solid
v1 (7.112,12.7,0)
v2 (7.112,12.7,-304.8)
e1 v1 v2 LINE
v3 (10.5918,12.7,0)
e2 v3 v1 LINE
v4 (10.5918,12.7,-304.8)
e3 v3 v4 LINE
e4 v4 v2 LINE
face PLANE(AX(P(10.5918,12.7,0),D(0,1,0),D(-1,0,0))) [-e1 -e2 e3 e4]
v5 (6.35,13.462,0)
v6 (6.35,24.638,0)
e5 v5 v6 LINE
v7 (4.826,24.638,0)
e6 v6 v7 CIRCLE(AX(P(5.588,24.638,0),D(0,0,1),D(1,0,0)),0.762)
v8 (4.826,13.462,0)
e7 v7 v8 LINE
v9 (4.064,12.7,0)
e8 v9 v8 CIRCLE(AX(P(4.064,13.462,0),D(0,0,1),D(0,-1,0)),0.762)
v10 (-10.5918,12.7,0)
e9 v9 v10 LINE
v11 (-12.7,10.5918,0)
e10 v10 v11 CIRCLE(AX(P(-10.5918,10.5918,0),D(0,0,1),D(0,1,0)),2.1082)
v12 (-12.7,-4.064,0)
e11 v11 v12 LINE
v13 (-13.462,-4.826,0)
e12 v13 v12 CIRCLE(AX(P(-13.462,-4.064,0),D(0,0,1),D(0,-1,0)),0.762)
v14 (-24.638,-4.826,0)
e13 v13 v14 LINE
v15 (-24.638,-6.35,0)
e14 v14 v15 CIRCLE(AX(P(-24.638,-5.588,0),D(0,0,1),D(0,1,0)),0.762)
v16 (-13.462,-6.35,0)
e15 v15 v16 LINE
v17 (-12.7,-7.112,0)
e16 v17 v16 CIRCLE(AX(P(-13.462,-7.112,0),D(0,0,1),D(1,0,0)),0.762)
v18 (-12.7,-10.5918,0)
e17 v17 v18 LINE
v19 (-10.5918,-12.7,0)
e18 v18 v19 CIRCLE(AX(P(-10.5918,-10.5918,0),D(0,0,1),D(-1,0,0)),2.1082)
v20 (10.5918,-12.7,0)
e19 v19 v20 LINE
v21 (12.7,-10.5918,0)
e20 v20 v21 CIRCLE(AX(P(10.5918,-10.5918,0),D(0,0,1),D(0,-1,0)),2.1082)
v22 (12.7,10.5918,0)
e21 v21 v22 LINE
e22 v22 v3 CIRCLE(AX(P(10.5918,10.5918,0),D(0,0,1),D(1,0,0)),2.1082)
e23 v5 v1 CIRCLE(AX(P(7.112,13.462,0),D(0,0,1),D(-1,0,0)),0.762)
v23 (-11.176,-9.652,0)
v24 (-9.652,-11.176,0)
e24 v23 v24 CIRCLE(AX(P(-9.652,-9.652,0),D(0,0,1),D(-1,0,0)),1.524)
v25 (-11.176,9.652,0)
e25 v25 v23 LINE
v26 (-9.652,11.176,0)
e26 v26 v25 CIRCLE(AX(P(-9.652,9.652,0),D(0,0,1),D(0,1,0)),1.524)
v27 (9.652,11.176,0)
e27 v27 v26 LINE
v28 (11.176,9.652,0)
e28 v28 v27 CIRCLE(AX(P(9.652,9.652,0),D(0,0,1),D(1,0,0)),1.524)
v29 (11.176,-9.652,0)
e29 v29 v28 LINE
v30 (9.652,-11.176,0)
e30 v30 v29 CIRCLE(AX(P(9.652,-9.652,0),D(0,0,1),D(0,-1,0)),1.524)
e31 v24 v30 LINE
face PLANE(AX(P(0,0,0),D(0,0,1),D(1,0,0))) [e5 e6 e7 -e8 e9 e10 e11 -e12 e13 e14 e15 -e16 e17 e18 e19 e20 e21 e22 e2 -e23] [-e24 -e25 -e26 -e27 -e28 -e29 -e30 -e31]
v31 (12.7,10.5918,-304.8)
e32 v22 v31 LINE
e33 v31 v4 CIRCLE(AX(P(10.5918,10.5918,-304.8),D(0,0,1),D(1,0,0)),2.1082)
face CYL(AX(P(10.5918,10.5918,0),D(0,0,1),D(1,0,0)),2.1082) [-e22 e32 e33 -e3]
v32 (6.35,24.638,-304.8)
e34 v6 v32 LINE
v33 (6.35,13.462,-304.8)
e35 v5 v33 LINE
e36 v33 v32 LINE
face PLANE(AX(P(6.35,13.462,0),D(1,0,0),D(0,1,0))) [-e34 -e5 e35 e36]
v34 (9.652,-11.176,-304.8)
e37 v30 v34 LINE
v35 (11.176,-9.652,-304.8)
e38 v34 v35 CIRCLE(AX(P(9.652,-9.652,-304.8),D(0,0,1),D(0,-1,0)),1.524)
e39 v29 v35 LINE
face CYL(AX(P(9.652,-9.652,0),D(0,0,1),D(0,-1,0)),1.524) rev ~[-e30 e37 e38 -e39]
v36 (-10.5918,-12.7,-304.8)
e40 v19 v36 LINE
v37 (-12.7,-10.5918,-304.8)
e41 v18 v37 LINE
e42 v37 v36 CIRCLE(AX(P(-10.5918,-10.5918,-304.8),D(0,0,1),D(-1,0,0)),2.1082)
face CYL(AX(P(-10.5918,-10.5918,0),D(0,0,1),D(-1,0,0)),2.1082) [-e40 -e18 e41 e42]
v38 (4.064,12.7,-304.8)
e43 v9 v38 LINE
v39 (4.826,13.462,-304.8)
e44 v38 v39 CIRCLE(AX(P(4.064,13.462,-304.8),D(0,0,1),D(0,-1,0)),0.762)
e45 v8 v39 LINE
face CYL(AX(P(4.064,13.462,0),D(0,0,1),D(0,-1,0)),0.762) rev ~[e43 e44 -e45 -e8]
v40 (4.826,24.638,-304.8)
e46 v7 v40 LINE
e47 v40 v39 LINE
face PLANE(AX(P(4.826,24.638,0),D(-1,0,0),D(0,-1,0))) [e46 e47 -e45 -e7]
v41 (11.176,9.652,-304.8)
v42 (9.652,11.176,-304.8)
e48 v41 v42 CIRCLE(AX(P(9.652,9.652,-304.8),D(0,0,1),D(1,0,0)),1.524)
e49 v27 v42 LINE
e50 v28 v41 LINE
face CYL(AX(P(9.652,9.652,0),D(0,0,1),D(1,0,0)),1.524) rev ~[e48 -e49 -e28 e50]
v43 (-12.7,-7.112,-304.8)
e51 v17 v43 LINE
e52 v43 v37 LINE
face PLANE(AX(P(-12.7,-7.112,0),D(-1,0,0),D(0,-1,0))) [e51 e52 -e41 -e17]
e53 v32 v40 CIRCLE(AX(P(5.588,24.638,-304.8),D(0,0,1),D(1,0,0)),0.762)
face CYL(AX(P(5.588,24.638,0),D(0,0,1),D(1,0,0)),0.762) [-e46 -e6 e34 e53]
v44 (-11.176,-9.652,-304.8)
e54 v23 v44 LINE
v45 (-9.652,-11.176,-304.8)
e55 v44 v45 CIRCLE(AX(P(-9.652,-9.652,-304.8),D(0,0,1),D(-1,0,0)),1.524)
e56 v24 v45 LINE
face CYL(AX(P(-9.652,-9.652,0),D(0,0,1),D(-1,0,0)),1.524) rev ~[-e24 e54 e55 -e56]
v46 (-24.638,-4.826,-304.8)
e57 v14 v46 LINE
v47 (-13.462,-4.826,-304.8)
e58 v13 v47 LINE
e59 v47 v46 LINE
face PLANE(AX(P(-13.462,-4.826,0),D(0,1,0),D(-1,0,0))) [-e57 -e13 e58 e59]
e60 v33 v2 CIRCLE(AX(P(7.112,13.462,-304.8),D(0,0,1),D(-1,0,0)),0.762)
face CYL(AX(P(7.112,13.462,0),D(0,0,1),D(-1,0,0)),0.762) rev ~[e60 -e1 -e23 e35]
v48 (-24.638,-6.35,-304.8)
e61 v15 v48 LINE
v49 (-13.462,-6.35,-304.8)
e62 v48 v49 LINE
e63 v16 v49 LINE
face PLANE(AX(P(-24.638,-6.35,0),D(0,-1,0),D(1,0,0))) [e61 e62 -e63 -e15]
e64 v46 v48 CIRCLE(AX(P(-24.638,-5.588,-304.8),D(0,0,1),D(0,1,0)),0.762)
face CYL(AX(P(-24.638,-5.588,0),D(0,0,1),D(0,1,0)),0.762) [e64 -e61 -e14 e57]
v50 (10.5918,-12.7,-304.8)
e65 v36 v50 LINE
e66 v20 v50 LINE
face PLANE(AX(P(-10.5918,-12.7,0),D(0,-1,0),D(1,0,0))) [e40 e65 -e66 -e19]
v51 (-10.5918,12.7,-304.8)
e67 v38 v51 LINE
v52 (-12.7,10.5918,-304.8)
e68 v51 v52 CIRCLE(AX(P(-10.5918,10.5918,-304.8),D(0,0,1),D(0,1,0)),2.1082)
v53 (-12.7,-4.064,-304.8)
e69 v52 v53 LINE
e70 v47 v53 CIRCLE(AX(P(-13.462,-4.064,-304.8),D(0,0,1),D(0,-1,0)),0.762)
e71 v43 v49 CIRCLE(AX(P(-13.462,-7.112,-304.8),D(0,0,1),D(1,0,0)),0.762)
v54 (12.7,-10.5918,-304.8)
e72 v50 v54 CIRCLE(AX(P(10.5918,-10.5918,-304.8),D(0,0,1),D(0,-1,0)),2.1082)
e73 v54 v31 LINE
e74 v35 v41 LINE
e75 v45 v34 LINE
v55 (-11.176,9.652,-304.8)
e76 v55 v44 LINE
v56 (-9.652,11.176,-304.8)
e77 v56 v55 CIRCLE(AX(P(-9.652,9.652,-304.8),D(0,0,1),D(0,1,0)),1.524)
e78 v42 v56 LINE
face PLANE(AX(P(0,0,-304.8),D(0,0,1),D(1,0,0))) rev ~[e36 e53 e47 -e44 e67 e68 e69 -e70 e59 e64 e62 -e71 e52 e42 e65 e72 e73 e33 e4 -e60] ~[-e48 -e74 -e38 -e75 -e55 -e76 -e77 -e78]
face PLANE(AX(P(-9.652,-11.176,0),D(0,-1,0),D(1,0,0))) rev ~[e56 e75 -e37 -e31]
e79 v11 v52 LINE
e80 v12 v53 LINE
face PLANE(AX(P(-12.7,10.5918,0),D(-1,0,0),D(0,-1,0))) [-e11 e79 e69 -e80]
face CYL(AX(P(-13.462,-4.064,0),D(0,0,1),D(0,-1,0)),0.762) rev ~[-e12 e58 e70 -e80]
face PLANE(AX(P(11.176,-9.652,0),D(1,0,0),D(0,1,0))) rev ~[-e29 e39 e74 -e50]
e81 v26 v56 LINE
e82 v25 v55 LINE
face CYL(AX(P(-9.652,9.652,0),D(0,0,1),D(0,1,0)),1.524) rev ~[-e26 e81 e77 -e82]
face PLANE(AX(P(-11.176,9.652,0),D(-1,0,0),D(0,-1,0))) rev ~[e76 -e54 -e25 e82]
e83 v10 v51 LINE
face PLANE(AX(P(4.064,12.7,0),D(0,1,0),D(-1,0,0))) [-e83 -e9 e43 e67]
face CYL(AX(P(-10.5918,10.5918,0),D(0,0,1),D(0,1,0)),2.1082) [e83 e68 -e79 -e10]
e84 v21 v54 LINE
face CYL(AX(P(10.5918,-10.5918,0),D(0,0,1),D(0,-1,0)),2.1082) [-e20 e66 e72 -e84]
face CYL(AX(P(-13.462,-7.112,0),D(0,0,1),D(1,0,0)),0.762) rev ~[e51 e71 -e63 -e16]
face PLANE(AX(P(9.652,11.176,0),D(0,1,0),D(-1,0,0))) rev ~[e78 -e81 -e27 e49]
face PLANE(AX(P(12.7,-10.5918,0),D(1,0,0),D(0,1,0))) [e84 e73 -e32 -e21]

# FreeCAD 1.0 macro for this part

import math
import FreeCAD as App
import Part
import Sketcher
from FreeCAD import Vector
Q = App.Units.Quantity

doc = App.newDocument("Part")
body = doc.addObject("PartDesign::Body", "Body")

# Sketch on XY plane
sketch1 = body.newObject("Sketcher::SketchObject", "Sketch")
sketch1.AttachmentSupport = (doc.getObject("XY_Plane"), [""])
sketch1.MapMode = "FlatFace"
sketch1.addGeometry([
    Part.ArcOfCircle(Part.Circle(Vector(7.112, 13.462, 0), Vector(0, 0, 1), 0.762), math.radians(180), math.radians(270)),  # 0
    Part.LineSegment(Vector(6.35, 13.462, 0), Vector(6.35, 24.638, 0)),  # 1
    Part.ArcOfCircle(Part.Circle(Vector(5.588, 24.638, 0), Vector(0, 0, 1), 0.762), math.radians(0), math.radians(180)),  # 2
    Part.LineSegment(Vector(4.826, 24.638, 0), Vector(4.826, 13.462, 0)),  # 3
    Part.ArcOfCircle(Part.Circle(Vector(4.064, 13.462, 0), Vector(0, 0, 1), 0.762), math.radians(-90), math.radians(0)),  # 4
    Part.LineSegment(Vector(4.064, 12.7, 0), Vector(-10.5918, 12.7, 0)),  # 5
    Part.ArcOfCircle(Part.Circle(Vector(-10.5918, 10.5918, 0), Vector(0, 0, 1), 2.1082), math.radians(90), math.radians(180)),  # 6
    Part.LineSegment(Vector(-12.7, 10.5918, 0), Vector(-12.7, -4.064, 0)),  # 7
    Part.ArcOfCircle(Part.Circle(Vector(-13.462, -4.064, 0), Vector(0, 0, 1), 0.762), math.radians(-90), math.radians(0)),  # 8
    Part.LineSegment(Vector(-13.462, -4.826, 0), Vector(-24.638, -4.826, 0)),  # 9
    Part.ArcOfCircle(Part.Circle(Vector(-24.638, -5.588, 0), Vector(0, 0, 1), 0.762), math.radians(90), math.radians(270)),  # 10
    Part.LineSegment(Vector(-24.638, -6.35, 0), Vector(-13.462, -6.35, 0)),  # 11
    Part.ArcOfCircle(Part.Circle(Vector(-13.462, -7.112, 0), Vector(0, 0, 1), 0.762), math.radians(0), math.radians(90)),  # 12
    Part.LineSegment(Vector(-12.7, -7.112, 0), Vector(-12.7, -10.5918, 0)),  # 13
    Part.ArcOfCircle(Part.Circle(Vector(-10.5918, -10.5918, 0), Vector(0, 0, 1), 2.1082), math.radians(180), math.radians(270)),  # 14
    Part.LineSegment(Vector(-10.5918, -12.7, 0), Vector(10.5918, -12.7, 0)),  # 15
    Part.ArcOfCircle(Part.Circle(Vector(10.5918, -10.5918, 0), Vector(0, 0, 1), 2.1082), math.radians(-90), math.radians(0)),  # 16
    Part.LineSegment(Vector(12.7, -10.5918, 0), Vector(12.7, 10.5918, 0)),  # 17
    Part.ArcOfCircle(Part.Circle(Vector(10.5918, 10.5918, 0), Vector(0, 0, 1), 2.1082), math.radians(0), math.radians(90)),  # 18
    Part.LineSegment(Vector(10.5918, 12.7, 0), Vector(7.112, 12.7, 0)),  # 19
    Part.LineSegment(Vector(11.176, 9.652, 0), Vector(11.176, -9.652, 0)),  # 20
    Part.ArcOfCircle(Part.Circle(Vector(9.652, -9.652, 0), Vector(0, 0, 1), 1.524), math.radians(-90), math.radians(0)),  # 21
    Part.LineSegment(Vector(9.652, -11.176, 0), Vector(-9.652, -11.176, 0)),  # 22
    Part.ArcOfCircle(Part.Circle(Vector(-9.652, -9.652, 0), Vector(0, 0, 1), 1.524), math.radians(180), math.radians(270)),  # 23
    Part.LineSegment(Vector(-11.176, -9.652, 0), Vector(-11.176, 9.652, 0)),  # 24
    Part.ArcOfCircle(Part.Circle(Vector(-9.652, 9.652, 0), Vector(0, 0, 1), 1.524), math.radians(90), math.radians(180)),  # 25
    Part.LineSegment(Vector(-9.652, 11.176, 0), Vector(9.652, 11.176, 0)),  # 26
    Part.ArcOfCircle(Part.Circle(Vector(9.652, 9.652, 0), Vector(0, 0, 1), 1.524), math.radians(0), math.radians(90)),  # 27
], False)
sketch1.addConstraint([
    Sketcher.Constraint("Tangent", 0, 1, 1, 1),
    Sketcher.Constraint("Tangent", 1, 2, 2, 1),
    Sketcher.Constraint("Tangent", 2, 2, 3, 1),
    Sketcher.Constraint("Tangent", 3, 2, 4, 2),
    Sketcher.Constraint("Tangent", 4, 1, 5, 1),
    Sketcher.Constraint("Tangent", 5, 2, 6, 1),
    Sketcher.Constraint("Tangent", 6, 2, 7, 1),
    Sketcher.Constraint("Tangent", 7, 2, 8, 2),
    Sketcher.Constraint("Tangent", 8, 1, 9, 1),
    Sketcher.Constraint("Tangent", 9, 2, 10, 1),
    Sketcher.Constraint("Tangent", 10, 2, 11, 1),
    Sketcher.Constraint("Tangent", 11, 2, 12, 2),
    Sketcher.Constraint("Tangent", 12, 1, 13, 1),
    Sketcher.Constraint("Tangent", 13, 2, 14, 1),
    Sketcher.Constraint("Tangent", 14, 2, 15, 1),
    Sketcher.Constraint("Tangent", 15, 2, 16, 1),
    Sketcher.Constraint("Tangent", 16, 2, 17, 1),
    Sketcher.Constraint("Tangent", 17, 2, 18, 1),
    Sketcher.Constraint("Tangent", 18, 2, 19, 1),
    Sketcher.Constraint("Tangent", 19, 2, 0, 2),
    Sketcher.Constraint("Tangent", 20, 2, 21, 2),
    Sketcher.Constraint("Tangent", 21, 1, 22, 1),
    Sketcher.Constraint("Tangent", 22, 2, 23, 2),
    Sketcher.Constraint("Tangent", 23, 1, 24, 1),
    Sketcher.Constraint("Tangent", 24, 2, 25, 2),
    Sketcher.Constraint("Tangent", 25, 1, 26, 1),
    Sketcher.Constraint("Tangent", 26, 2, 27, 2),
    Sketcher.Constraint("Tangent", 27, 1, 20, 1),
    Sketcher.Constraint("Vertical", 1),
    Sketcher.Constraint("Vertical", 3),
    Sketcher.Constraint("Horizontal", 5),
    Sketcher.Constraint("Vertical", 7),
    Sketcher.Constraint("Horizontal", 9),
    Sketcher.Constraint("Horizontal", 11),
    Sketcher.Constraint("Vertical", 13),
    Sketcher.Constraint("Horizontal", 15),
    Sketcher.Constraint("Vertical", 17),
    Sketcher.Constraint("Horizontal", 19),
    Sketcher.Constraint("Vertical", 20),
    Sketcher.Constraint("Horizontal", 22),
    Sketcher.Constraint("Vertical", 24),
    Sketcher.Constraint("Horizontal", 26),
    Sketcher.Constraint("Equal", 0, 2),
    Sketcher.Constraint("Equal", 2, 4),
    Sketcher.Constraint("Equal", 4, 8),
    Sketcher.Constraint("Equal", 8, 10),
    Sketcher.Constraint("Equal", 10, 12),
    Sketcher.Constraint("Equal", 6, 14),
    Sketcher.Constraint("Equal", 14, 16),
    Sketcher.Constraint("Equal", 16, 18),
    Sketcher.Constraint("Equal", 21, 23),
    Sketcher.Constraint("Equal", 23, 25),
    Sketcher.Constraint("Equal", 25, 27),
    Sketcher.Constraint("Symmetric", 6, 3, 16, 3, -1, 1),
    Sketcher.Constraint("Symmetric", 14, 3, 18, 3, -1, 1),
    Sketcher.Constraint("Symmetric", 21, 3, 25, 3, -1, 1),
    Sketcher.Constraint("Equal", 11, 1),
    Sketcher.Constraint("Equal", 5, 7),
    Sketcher.Constraint("Equal", 19, 13),
    Sketcher.Constraint("Equal", 26, 20),
    Sketcher.Constraint("Radius", 0, Q("0.03 in")),
    Sketcher.Constraint("Radius", 21, Q("0.06 in")),
    Sketcher.Constraint("Radius", 6, Q("0.083 in")),
    Sketcher.Constraint("DistanceX", 9, 2, 9, 1, Q("0.44 in")),
    Sketcher.Constraint("DistanceX", 22, 2, 22, 1, Q("0.76 in")),
    Sketcher.Constraint("DistanceY", -1, 1, 4, 1, Q("0.5 in")),
    Sketcher.Constraint("DistanceX", 0, 3, 21, 3, Q("0.1 in")),
])
pad1 = body.newObject("PartDesign::Pad", "Pad")
pad1.Profile = sketch1
pad1.Length = Q("12 in")
pad1.Reversed = True

doc.recompute()
